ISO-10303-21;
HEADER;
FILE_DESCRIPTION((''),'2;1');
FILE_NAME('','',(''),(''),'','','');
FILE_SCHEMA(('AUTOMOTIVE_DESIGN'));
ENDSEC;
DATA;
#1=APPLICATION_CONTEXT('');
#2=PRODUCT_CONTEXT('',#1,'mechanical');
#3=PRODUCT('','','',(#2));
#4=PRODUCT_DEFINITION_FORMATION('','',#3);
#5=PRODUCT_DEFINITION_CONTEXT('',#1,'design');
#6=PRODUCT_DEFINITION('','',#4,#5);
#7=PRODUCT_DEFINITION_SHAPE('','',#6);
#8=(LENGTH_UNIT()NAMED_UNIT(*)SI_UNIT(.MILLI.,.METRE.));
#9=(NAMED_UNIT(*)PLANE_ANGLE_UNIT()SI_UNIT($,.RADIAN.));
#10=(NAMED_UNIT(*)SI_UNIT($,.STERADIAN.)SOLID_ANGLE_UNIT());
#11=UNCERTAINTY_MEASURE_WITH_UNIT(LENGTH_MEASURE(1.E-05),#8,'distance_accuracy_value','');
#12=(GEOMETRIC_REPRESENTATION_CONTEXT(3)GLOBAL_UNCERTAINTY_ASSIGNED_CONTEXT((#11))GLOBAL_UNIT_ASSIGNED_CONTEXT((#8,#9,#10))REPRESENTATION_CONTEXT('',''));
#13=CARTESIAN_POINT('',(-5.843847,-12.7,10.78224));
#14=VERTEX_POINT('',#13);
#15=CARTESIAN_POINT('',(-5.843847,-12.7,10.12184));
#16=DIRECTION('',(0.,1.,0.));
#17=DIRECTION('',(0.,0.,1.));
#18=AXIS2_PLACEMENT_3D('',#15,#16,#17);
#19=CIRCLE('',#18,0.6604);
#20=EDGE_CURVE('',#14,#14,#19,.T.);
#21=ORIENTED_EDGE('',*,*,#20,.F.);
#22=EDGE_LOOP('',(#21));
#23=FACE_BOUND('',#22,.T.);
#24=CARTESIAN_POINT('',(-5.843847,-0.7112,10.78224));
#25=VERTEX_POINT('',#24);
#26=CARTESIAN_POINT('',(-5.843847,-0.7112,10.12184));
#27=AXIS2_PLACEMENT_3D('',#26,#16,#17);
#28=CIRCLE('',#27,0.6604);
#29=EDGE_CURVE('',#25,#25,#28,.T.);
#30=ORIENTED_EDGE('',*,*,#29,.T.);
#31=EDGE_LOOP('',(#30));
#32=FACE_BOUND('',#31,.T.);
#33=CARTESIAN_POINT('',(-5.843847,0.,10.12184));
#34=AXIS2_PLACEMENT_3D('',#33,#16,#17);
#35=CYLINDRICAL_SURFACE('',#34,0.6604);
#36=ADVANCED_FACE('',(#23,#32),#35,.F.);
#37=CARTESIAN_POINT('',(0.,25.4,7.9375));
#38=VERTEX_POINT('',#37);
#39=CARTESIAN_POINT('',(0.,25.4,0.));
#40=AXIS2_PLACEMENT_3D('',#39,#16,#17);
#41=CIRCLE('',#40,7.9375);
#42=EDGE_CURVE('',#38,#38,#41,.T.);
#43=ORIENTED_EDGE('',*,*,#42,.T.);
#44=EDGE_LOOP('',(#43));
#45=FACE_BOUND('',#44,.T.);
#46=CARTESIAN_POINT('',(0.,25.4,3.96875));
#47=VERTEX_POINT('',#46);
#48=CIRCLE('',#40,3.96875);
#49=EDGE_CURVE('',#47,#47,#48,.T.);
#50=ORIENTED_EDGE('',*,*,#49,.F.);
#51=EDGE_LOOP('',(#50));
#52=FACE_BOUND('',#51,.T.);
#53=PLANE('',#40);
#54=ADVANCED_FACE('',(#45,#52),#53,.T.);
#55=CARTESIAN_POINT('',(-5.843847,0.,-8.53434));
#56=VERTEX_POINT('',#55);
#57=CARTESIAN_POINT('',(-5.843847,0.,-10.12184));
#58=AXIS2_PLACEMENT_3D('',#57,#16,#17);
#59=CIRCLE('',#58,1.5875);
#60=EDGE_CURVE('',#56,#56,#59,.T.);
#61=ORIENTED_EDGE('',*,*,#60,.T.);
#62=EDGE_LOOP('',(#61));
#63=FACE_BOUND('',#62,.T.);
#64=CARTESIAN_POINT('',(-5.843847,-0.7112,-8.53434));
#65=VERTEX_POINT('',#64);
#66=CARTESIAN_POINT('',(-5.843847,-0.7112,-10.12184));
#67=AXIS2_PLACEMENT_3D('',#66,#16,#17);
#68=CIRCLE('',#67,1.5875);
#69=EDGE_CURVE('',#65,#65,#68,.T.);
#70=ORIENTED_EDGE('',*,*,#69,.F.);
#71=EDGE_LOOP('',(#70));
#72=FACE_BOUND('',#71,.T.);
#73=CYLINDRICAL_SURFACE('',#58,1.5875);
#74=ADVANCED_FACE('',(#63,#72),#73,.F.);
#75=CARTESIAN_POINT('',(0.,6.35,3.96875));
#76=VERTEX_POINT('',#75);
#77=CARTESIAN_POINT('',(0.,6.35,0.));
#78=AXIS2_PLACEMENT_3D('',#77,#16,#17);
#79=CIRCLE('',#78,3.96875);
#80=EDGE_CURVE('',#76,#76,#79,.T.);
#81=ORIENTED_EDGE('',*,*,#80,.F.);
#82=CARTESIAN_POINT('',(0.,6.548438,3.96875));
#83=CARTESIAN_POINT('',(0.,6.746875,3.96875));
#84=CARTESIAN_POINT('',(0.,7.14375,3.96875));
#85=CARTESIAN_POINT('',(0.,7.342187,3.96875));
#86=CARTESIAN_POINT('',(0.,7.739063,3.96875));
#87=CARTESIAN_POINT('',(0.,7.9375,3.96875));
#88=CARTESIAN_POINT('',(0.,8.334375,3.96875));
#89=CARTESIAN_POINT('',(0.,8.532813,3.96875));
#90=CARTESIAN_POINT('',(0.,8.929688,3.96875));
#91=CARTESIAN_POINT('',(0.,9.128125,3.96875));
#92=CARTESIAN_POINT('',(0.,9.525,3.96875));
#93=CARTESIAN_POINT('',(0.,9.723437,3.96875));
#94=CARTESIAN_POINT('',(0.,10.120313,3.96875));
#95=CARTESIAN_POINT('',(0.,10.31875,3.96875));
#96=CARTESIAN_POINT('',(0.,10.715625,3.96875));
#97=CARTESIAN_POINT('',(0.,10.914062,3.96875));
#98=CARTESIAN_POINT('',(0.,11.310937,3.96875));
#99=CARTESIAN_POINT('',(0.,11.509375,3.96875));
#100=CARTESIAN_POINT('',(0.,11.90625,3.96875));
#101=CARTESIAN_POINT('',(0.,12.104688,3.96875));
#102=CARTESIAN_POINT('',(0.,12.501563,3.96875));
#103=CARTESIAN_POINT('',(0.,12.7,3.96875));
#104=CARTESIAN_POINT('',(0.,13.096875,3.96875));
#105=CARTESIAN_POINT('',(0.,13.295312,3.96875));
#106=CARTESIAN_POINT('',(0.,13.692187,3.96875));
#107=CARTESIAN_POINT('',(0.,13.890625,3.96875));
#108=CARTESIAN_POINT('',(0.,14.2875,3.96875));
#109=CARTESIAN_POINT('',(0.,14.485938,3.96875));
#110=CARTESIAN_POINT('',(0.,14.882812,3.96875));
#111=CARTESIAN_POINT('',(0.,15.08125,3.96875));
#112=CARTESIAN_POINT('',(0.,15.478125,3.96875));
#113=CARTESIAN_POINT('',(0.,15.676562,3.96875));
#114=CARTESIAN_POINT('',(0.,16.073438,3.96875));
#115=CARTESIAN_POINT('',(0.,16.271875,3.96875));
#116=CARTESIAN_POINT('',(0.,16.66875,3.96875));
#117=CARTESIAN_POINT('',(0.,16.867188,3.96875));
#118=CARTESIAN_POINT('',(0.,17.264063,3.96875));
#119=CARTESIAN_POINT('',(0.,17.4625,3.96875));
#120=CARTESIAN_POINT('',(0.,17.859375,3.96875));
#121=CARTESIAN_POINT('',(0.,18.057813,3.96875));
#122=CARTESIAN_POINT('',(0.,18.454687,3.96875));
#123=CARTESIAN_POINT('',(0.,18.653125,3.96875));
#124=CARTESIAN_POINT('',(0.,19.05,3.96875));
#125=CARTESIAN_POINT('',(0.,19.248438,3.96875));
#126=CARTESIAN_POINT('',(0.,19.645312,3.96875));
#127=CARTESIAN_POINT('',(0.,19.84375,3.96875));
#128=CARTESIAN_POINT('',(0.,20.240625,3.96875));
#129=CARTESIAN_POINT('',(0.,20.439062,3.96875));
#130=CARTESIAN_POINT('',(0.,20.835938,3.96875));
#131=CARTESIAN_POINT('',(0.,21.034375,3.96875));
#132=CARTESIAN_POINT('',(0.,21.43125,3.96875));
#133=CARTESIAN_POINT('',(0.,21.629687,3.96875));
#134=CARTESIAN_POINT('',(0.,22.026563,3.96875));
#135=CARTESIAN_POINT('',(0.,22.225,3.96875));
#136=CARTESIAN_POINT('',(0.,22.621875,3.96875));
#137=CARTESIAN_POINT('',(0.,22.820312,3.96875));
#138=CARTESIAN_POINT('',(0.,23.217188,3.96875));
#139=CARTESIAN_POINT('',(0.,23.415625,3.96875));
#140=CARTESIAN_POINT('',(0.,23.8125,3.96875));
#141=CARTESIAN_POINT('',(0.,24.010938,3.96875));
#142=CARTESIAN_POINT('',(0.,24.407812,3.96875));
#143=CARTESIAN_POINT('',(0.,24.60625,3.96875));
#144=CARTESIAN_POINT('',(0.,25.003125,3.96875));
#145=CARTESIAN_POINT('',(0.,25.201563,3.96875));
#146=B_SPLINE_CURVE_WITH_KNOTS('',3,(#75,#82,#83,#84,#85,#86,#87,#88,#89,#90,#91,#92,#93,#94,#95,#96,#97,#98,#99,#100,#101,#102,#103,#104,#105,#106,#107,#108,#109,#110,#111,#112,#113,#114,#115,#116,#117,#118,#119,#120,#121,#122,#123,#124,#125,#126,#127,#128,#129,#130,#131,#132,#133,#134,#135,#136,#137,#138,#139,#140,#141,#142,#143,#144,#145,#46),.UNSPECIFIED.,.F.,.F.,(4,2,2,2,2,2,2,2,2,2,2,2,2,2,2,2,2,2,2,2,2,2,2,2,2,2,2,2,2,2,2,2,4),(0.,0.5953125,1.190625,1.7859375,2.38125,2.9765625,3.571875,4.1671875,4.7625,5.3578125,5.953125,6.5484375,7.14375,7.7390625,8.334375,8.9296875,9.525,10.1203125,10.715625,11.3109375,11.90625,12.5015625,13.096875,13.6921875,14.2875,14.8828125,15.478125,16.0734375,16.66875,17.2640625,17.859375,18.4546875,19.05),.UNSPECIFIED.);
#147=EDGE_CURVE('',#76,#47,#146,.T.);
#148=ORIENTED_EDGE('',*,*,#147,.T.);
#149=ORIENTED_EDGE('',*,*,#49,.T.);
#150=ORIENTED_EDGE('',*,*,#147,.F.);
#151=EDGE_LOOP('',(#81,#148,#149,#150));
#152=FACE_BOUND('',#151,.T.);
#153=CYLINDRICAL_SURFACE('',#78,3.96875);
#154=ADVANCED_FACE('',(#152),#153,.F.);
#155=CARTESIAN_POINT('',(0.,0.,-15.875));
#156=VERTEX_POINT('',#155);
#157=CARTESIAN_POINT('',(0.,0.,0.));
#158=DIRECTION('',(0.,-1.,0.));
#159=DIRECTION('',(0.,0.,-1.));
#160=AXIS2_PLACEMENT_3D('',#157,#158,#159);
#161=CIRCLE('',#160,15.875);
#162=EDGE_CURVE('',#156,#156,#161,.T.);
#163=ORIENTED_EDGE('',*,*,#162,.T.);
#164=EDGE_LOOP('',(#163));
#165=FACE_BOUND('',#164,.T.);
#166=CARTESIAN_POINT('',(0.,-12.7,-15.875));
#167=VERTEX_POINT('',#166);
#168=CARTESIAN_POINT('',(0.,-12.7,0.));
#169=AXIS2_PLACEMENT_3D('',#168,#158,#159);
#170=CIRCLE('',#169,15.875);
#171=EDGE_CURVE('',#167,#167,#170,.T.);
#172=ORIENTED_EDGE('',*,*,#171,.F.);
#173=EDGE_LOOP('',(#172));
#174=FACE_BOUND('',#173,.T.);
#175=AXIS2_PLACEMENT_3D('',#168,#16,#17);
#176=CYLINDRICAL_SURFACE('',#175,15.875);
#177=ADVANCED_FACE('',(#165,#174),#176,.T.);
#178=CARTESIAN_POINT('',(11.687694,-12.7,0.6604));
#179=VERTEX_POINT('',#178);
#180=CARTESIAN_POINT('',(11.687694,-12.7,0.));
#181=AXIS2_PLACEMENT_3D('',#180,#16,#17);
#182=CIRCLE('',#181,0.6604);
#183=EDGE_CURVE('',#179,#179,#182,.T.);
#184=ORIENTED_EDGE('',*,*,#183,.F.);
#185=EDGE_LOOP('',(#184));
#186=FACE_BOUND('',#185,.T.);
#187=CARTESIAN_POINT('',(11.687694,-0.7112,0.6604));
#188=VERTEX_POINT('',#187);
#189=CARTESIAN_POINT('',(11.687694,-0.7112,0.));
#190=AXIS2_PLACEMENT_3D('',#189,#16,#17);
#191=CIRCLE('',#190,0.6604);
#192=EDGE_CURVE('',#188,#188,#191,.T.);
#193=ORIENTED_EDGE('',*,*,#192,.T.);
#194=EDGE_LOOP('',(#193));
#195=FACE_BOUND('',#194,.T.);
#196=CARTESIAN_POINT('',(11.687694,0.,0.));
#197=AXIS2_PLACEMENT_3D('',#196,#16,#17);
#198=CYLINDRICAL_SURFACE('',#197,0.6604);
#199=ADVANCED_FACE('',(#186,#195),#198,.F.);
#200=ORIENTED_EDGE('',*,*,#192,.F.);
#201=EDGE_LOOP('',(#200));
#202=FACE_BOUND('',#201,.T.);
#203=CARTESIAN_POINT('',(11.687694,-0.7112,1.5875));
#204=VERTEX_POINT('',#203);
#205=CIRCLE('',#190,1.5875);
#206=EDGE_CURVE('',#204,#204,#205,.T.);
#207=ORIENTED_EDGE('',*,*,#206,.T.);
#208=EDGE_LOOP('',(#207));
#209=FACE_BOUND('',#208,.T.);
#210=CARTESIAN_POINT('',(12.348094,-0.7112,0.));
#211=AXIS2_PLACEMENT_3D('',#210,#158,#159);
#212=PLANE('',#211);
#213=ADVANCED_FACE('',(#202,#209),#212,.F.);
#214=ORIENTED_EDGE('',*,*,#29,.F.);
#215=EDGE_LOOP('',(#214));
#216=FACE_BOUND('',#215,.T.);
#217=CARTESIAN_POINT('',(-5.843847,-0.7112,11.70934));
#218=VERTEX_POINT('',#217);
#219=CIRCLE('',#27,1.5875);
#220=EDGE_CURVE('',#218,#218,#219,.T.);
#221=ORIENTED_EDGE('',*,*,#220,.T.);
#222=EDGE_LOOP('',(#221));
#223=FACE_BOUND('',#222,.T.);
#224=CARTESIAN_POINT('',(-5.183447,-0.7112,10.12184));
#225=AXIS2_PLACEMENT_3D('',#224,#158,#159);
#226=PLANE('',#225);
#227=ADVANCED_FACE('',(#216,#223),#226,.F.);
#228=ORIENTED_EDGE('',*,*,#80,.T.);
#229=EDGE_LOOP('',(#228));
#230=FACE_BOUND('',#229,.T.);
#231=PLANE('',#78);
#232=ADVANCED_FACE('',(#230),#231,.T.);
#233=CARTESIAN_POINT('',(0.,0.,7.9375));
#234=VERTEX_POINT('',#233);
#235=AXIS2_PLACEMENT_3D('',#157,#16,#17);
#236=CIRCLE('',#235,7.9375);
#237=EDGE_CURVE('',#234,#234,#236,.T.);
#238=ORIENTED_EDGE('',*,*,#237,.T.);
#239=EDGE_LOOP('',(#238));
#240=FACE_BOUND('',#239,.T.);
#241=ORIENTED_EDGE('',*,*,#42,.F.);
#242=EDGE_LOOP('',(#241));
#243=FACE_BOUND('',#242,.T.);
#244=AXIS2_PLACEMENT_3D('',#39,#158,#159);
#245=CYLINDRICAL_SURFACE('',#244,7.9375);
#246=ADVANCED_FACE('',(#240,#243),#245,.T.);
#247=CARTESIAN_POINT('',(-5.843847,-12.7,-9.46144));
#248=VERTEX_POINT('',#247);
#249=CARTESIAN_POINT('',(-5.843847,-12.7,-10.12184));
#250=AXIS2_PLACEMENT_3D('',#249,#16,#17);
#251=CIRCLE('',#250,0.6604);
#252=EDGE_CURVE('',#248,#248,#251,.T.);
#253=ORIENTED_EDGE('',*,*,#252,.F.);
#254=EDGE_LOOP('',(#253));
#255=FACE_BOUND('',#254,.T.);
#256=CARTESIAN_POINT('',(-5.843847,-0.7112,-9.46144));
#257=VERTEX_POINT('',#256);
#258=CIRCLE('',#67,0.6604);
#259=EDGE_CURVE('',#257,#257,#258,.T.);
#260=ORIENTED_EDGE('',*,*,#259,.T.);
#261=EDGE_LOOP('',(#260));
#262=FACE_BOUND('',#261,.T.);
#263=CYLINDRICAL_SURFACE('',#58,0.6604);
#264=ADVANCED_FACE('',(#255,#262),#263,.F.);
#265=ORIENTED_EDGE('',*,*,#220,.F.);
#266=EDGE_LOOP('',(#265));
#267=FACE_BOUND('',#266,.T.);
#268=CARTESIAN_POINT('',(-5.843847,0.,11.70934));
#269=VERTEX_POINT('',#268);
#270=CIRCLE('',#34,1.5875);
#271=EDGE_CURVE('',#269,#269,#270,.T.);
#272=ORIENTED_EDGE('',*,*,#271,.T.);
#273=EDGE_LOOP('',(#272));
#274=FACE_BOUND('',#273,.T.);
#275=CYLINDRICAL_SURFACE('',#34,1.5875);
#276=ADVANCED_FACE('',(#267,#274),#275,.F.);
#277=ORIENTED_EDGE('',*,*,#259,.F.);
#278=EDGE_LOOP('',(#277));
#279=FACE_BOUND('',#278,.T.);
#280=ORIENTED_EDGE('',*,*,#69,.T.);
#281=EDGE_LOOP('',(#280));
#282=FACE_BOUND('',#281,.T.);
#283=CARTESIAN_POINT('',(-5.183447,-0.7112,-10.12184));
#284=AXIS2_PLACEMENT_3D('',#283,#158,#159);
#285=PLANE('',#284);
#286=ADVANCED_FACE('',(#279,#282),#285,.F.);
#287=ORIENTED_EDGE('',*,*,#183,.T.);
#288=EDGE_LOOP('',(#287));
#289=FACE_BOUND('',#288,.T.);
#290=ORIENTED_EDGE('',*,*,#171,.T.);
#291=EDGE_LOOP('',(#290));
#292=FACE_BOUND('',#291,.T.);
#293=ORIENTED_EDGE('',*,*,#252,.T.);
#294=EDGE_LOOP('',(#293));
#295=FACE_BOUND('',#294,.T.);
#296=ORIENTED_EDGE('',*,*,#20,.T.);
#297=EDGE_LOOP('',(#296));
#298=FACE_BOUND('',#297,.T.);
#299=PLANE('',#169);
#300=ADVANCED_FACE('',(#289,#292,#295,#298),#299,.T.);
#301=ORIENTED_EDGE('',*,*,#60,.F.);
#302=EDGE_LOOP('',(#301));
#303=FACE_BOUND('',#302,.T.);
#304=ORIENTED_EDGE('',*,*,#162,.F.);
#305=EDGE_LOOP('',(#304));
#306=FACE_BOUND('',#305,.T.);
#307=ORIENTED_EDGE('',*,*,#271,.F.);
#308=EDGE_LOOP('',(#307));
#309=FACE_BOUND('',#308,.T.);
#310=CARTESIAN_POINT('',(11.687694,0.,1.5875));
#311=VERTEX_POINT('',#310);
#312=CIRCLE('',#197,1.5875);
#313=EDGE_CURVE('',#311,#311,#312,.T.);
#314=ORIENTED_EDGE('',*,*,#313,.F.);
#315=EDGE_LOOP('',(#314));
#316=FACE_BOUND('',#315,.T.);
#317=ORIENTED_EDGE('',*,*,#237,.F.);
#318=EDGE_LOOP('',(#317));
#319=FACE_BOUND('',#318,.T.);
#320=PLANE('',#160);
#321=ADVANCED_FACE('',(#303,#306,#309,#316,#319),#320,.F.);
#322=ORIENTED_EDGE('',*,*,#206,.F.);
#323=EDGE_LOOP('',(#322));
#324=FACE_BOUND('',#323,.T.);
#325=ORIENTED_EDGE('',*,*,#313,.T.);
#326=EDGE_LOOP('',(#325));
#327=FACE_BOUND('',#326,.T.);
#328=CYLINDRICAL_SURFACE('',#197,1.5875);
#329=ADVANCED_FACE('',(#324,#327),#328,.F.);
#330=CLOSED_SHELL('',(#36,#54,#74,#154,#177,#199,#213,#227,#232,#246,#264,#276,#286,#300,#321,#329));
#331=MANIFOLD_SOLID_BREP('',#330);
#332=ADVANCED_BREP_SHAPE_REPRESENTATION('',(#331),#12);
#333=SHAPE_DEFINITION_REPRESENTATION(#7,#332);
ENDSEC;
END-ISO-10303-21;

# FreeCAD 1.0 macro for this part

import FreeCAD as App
import Part
import Sketcher
from FreeCAD import Vector
Q = App.Units.Quantity

doc = App.newDocument("Part")
body = doc.addObject("PartDesign::Body", "Body")

sketch1 = body.newObject("Sketcher::SketchObject", "Sketch")
sketch1.AttachmentSupport = (doc.getObject("XZ_Plane"), [""])
sketch1.MapMode = "FlatFace"
sketch1.addGeometry(Part.Circle(Vector(0, 0, 0), Vector(0, 0, 1), 7.9375), False)
sketch1.addConstraint([
    Sketcher.Constraint("Coincident", 0, 3, -1, 1),
    Sketcher.Constraint("Diameter", 0, Q("0.625 in")),
])
pad1 = body.newObject("PartDesign::Pad", "Pad")
pad1.Profile = sketch1
pad1.Length = Q("1 in")
pad1.Reversed = True

sketch2 = body.newObject("Sketcher::SketchObject", "Sketch001")
sketch2.AttachmentSupport = (doc.getObject("XZ_Plane"), [""])
sketch2.MapMode = "FlatFace"
sketch2.addGeometry(Part.Circle(Vector(0, 0, 0), Vector(0, 0, 1), 15.875), False)
sketch2.addConstraint([
    Sketcher.Constraint("Coincident", 0, 3, -1, 1),
    Sketcher.Constraint("Diameter", 0, Q("1.25 in")),
])
pad2 = body.newObject("PartDesign::Pad", "Pad001")
pad2.Profile = sketch2
pad2.Length = Q("0.5 in")

sketch3 = body.newObject("Sketcher::SketchObject", "Sketch002")
sketch3.AttachmentSupport = (doc.getObject("XZ_Plane"), [""])
sketch3.MapMode = "FlatFace"
sketch3.AttachmentOffset = App.Placement(Vector(0, 0, -1 * 25.4), App.Rotation())
sketch3.addGeometry(Part.Circle(Vector(0, 0, 0), Vector(0, 0, 1), 3.96875), False)
sketch3.addConstraint([
    Sketcher.Constraint("Coincident", 0, 3, -1, 1),
    Sketcher.Constraint("Diameter", 0, Q("0.3125 in")),
])
pocket1 = body.newObject("PartDesign::Pocket", "Pocket")
pocket1.Profile = sketch3
pocket1.Length = Q("0.75 in")
pocket1.Reversed = True

sketch4 = body.newObject("Sketcher::SketchObject", "Sketch003")
sketch4.AttachmentSupport = (doc.getObject("XZ_Plane"), [""])
sketch4.MapMode = "FlatFace"
sketch4.addGeometry(Part.Circle(Vector(11.687694, 0, 0), Vector(0, 0, 1), 0.6604), False)
sketch4.addConstraint([
    Sketcher.Constraint("PointOnObject", 0, 3, -1),
    Sketcher.Constraint("Diameter", 0, Q("0.052 in")),
    Sketcher.Constraint("DistanceX", -1, 1, 0, 3, Q("11.687694 mm")),
])
doc.recompute()
hole = body.newObject("PartDesign::Hole", "Hole")
hole.Profile = sketch4
hole.ThreadType = "None"
hole.Diameter = Q("0.052 in")
hole.DepthType = "ThroughAll"
hole.HoleCutType = "Counterbore"
hole.HoleCutDiameter = Q("0.125 in")
hole.HoleCutDepth = Q("0.028 in")
hole.Reversed = True
doc.recompute()

polarpattern = body.newObject("PartDesign::PolarPattern", "PolarPattern")
polarpattern.Originals = [hole]
polarpattern.Axis = (doc.getObject("Y_Axis"), [""])
polarpattern.Angle = 360
polarpattern.Occurrences = 3
body.Tip = polarpattern

doc.recompute()
